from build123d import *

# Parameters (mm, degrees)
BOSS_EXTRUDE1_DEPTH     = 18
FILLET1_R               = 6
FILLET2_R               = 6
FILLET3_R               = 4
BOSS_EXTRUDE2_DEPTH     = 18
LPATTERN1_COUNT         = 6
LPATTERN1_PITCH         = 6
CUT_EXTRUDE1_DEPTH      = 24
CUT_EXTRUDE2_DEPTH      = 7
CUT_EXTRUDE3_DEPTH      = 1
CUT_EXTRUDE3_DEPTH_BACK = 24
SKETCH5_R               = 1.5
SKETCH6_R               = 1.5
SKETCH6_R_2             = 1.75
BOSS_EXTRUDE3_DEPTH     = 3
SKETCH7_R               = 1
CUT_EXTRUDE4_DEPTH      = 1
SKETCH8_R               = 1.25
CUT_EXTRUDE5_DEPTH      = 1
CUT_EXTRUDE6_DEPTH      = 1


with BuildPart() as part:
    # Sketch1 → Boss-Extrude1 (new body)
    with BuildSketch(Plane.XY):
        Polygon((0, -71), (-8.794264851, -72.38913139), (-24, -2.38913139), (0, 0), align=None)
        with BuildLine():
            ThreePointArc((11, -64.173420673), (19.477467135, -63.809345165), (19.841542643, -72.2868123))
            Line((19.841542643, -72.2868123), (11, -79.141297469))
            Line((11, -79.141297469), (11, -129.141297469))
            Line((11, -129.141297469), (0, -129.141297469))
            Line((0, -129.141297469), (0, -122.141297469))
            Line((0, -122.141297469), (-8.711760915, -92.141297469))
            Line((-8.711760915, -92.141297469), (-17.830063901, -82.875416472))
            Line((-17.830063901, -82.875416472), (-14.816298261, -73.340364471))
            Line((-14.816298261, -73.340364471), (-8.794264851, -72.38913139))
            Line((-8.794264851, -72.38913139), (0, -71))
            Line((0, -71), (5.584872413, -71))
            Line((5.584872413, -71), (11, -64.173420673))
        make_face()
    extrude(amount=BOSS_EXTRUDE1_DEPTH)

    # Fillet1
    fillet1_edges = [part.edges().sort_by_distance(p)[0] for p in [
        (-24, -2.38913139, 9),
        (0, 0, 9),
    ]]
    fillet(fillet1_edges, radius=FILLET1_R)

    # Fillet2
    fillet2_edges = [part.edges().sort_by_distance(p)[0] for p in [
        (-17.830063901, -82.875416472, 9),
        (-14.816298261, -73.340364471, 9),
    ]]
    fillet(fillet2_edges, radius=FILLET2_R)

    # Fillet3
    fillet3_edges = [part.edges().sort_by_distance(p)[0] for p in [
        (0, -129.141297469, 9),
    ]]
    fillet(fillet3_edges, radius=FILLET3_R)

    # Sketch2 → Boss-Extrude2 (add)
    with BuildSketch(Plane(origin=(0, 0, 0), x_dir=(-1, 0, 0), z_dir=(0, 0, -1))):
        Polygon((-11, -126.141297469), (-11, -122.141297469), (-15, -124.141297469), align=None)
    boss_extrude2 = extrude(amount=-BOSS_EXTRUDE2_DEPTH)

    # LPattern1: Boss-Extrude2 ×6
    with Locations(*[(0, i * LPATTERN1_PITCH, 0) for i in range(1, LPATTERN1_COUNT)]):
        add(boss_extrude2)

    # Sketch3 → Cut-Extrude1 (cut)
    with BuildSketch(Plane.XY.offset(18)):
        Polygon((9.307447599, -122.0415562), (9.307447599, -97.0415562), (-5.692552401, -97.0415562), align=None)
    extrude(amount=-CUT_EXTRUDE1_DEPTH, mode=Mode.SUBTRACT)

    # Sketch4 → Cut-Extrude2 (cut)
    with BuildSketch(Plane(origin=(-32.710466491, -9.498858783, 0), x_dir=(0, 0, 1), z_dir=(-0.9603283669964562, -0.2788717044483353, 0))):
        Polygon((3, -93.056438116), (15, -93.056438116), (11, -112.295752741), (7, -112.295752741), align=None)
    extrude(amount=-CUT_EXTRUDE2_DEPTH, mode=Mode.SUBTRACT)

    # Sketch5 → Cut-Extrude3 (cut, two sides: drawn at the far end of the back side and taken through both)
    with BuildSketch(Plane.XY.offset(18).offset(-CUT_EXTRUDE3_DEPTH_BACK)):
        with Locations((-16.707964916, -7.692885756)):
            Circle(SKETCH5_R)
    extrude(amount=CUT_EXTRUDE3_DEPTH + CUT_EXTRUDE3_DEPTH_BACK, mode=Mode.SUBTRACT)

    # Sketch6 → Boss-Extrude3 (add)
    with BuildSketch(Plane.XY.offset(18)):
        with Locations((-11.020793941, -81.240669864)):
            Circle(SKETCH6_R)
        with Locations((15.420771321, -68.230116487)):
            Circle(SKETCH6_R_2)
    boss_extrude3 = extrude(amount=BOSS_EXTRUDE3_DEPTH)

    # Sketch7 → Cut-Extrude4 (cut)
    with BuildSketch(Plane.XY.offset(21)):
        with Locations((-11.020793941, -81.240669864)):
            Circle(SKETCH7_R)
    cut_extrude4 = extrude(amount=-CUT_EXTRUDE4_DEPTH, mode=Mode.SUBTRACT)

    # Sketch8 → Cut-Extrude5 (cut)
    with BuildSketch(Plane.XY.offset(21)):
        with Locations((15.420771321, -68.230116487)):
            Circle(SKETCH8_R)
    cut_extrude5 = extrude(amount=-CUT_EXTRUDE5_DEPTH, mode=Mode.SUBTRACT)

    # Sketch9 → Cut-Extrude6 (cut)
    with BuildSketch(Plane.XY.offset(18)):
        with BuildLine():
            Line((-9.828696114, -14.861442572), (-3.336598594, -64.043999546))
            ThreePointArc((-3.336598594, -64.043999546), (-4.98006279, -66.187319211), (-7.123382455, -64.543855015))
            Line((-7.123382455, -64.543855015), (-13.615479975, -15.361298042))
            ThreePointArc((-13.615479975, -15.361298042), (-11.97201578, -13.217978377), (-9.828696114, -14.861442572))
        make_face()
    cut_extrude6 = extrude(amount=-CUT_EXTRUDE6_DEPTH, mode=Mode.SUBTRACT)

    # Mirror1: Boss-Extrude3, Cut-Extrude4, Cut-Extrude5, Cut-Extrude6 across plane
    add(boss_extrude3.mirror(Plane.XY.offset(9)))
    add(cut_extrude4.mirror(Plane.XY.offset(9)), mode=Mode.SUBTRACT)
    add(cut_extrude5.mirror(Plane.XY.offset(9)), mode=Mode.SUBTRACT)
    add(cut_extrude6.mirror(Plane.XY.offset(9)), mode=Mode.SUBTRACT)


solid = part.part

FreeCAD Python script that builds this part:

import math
import FreeCAD as App
import Part
import Sketcher

V = App.Vector
Q = App.Units.Quantity


def edges_at(feature, points):
    """Names of the edges that pass closest to the given points."""
    edges = feature.Shape.Edges
    near = lambda p: min(range(len(edges)), key=lambda i: edges[i].distToShape(Part.Vertex(*p))[0])
    return sorted({f"Edge{near(p) + 1}" for p in points})


def add_polygon(sketch, points):
    """Adds a closed chain of lines whose ends are joined by coincident constraints."""
    first, n = sketch.GeometryCount, len(points)
    for a, b in zip(points, points[1:] + points[:1]):
        sketch.addGeometry(Part.LineSegment(App.Vector(*a, 0), App.Vector(*b, 0)), False)
    for i in range(n):
        sketch.addConstraint(Sketcher.Constraint("Coincident", first + i, 2, first + (i + 1) % n, 1))

doc = App.newDocument("Part")
body = doc.addObject("PartDesign::Body", "Body")

sketch1 = body.newObject("Sketcher::SketchObject", "Sketch")
sketch1.AttachmentSupport = (doc.getObject("XY_Plane"), [""])
sketch1.MapMode = "FlatFace"
sketch1.addGeometry([
    Part.LineSegment(V(-24, -2, 0), V(-9, -72, 0)),
    Part.LineSegment(V(-9, -72, 0), V(-15, -73, 0)),
    Part.LineSegment(V(-15, -73, 0), V(-18, -83, 0)),
    Part.LineSegment(V(-18, -83, 0), V(-9, -92, 0)),
    Part.LineSegment(V(-9, -92, 0), V(0, -122, 0)),
    Part.LineSegment(V(0, -122, 0), V(0, -129, 0)),
    Part.LineSegment(V(0, -129, 0), V(11, -129, 0)),
    Part.LineSegment(V(11, -129, 0), V(11, -79, 0)),
    Part.LineSegment(V(11, -79, 0), V(20, -72, 0)),
    Part.ArcOfCircle(Part.Circle(V(15, -68, 0), V(0, 0, 1), 6), math.radians(-43), math.radians(137)),
    Part.LineSegment(V(11, -64, 0), V(6, -71, 0)),
    Part.LineSegment(V(6, -71, 0), V(0, -71, 0)),
    Part.LineSegment(V(0, -71, 0), V(0, 0, 0)),
    Part.LineSegment(V(0, 0, 0), V(-24, -2, 0)),
], False)
sketch1.addConstraint([
    Sketcher.Constraint("Coincident", 0, 2, 1, 1),
    Sketcher.Constraint("Coincident", 1, 2, 2, 1),
    Sketcher.Constraint("Coincident", 2, 2, 3, 1),
    Sketcher.Constraint("Coincident", 3, 2, 4, 1),
    Sketcher.Constraint("Coincident", 4, 2, 5, 1),
    Sketcher.Constraint("Coincident", 5, 2, 6, 1),
    Sketcher.Constraint("Coincident", 6, 2, 7, 1),
    Sketcher.Constraint("Coincident", 7, 2, 8, 1),
    Sketcher.Constraint("Coincident", 8, 2, 9, 1),
    Sketcher.Constraint("Coincident", 9, 2, 10, 1),
    Sketcher.Constraint("Coincident", 10, 2, 11, 1),
    Sketcher.Constraint("Coincident", 11, 2, 12, 1),
    Sketcher.Constraint("Coincident", 12, 2, 13, 1),
    Sketcher.Constraint("Coincident", 13, 2, 0, 1),
    Sketcher.Constraint("Vertical", 5),
    Sketcher.Constraint("Horizontal", 6),
    Sketcher.Constraint("Vertical", 7),
    Sketcher.Constraint("Horizontal", 11),
    Sketcher.Constraint("Vertical", 12),
    Sketcher.Constraint("Coincident", 12, 2, -1, 1),
    Sketcher.Constraint("PointOnObject", 4, 2, -2),
    Sketcher.Constraint("Vertical", 7, 2, 9, 2),
    Sketcher.Constraint("Radius", 9, Q("6 mm")),
    Sketcher.Constraint("DistanceX", 6, 1, 6, 2, Q("11 mm")),
    Sketcher.Constraint("DistanceY", 5, 2, 5, 1, Q("7 mm")),
    Sketcher.Constraint("DistanceY", 7, 1, 7, 2, Q("50 mm")),
    Sketcher.Constraint("DistanceY", 12, 1, 12, 2, Q("71 mm")),
    Sketcher.Constraint("Distance", 2, Q("10 mm")),
    Sketcher.Constraint("Distance", 3, Q("13 mm")),
    Sketcher.Constraint("DistanceX", 13, 2, -1, 1, Q("24 mm")),
    Sketcher.Constraint("DistanceY", 4, 2, 3, 2, Q("30 mm")),
    Sketcher.Constraint("DistanceY", 0, 2, 13, 2, Q("70 mm")),
    Sketcher.Constraint("Distance", 1, Q("6.096698 mm")),
    Sketcher.Constraint("DistanceX", 1, 2, -1, 1, Q("14.816298 mm")),
    Sketcher.Constraint("DistanceX", 2, 2, 0, 2, Q("9.035799 mm")),
    Sketcher.Constraint("DistanceY", 2, 2, 9, 3, Q("14.6453 mm")),
    Sketcher.Constraint("DistanceX", 10, 2, 9, 3, Q("9.835899 mm")),
    Sketcher.Constraint("Distance", 8, Q("11.187352 mm")),
    Sketcher.Constraint("Distance", 10, Q("8.713541 mm")),
    Sketcher.Constraint("DistanceX", 11, 2, 11, 1, Q("5.584872 mm")),
    Sketcher.Constraint("DistanceY", 0, 2, -1, 1, Q("72.389131 mm")),
    Sketcher.Constraint("DistanceX", 3, 2, -1, 1, Q("8.711761 mm")),
])
pad1 = body.newObject("PartDesign::Pad", "Pad")
pad1.Profile = sketch1
pad1.Length = 18
doc.recompute()

fillet = body.newObject("PartDesign::Fillet", "Fillet")
fillet.Base = (pad1, edges_at(pad1, [(-24, -2.389, 9), (0, 0, 9)]))
fillet.Radius = 6
doc.recompute()

fillet2 = body.newObject("PartDesign::Fillet", "Fillet001")
fillet2.Base = (fillet, edges_at(fillet, [(-17.83, -82.875, 9), (-14.816, -73.34, 9)]))
fillet2.Radius = 6
doc.recompute()

fillet3 = body.newObject("PartDesign::Fillet", "Fillet002")
fillet3.Base = (fillet2, edges_at(fillet2, [(0, -129.141, 9)]))
fillet3.Radius = 4

sketch2 = body.newObject("Sketcher::SketchObject", "Sketch001")
sketch2.AttachmentSupport = (doc.getObject("XY_Plane"), [""])
sketch2.MapMode = "FlatFace"
add_polygon(sketch2, [(11, -126.1), (11, -122.1), (15, -124.1)])
sketch2.addConstraint([
    Sketcher.Constraint("Vertical", 0),
    Sketcher.Constraint("Equal", 1, 2),
    Sketcher.Constraint("DistanceY", 0, 1, 0, 2, Q("4 mm")),
    Sketcher.Constraint("DistanceX", -1, 1, 0, 2, Q("11 mm")),
    Sketcher.Constraint("DistanceX", -1, 1, 1, 2, Q("15 mm")),
    Sketcher.Constraint("DistanceY", 0, 2, -1, 1, Q("122.141297 mm")),
])
pad2 = body.newObject("PartDesign::Pad", "Pad001")
pad2.Profile = sketch2
pad2.Length = 18
doc.recompute()

linearpattern = body.newObject("PartDesign::LinearPattern", "LinearPattern")
linearpattern.Originals = [pad2]
linearpattern.Direction = (doc.getObject("Y_Axis"), [""])
linearpattern.Mode = "offset"
linearpattern.Offset = 6
linearpattern.Occurrences = 6
body.Tip = linearpattern

sketch3 = body.newObject("Sketcher::SketchObject", "Sketch002")
sketch3.AttachmentSupport = (doc.getObject("XY_Plane"), [""])
sketch3.MapMode = "FlatFace"
sketch3.AttachmentOffset = App.Placement(V(0, 0, 18), App.Rotation())
add_polygon(sketch3, [(9, -122), (9, -97), (-6, -97)])
sketch3.addConstraint([
    Sketcher.Constraint("Vertical", 0),
    Sketcher.Constraint("Horizontal", 1),
    Sketcher.Constraint("DistanceX", 1, 2, 1, 1, Q("15 mm")),
    Sketcher.Constraint("DistanceY", 0, 1, 0, 2, Q("25 mm")),
    Sketcher.Constraint("DistanceX", -1, 1, 0, 2, Q("9.307448 mm")),
    Sketcher.Constraint("DistanceY", 0, 2, -1, 1, Q("97.041556 mm")),
])
pocket1 = body.newObject("PartDesign::Pocket", "Pocket")
pocket1.Profile = sketch3
pocket1.Length = 24

sketch4 = body.newObject("Sketcher::SketchObject", "Sketch003")
sketch4.Placement = App.Placement(V(-32.710466, -9.498859, 0), App.Rotation(V(0, 0, 1), V(-0.278871704, 0.960328367, 0), V(-0.960328367, -0.278871704, 0), "ZXY"))
add_polygon(sketch4, [(15, -93.1), (3, -93.1), (7, -112.3), (11, -112.3)])
sketch4.addConstraint([
    Sketcher.Constraint("Horizontal", 0),
    Sketcher.Constraint("Horizontal", 2),
    Sketcher.Constraint("Equal", 1, 3),
    Sketcher.Constraint("DistanceX", 0, 2, 0, 1, Q("12 mm")),
    Sketcher.Constraint("DistanceX", 2, 1, 2, 2, Q("4 mm")),
    Sketcher.Constraint("DistanceX", -1, 1, 0, 2, Q("3 mm")),
    Sketcher.Constraint("Distance", 1, Q("19.650731 mm")),
    Sketcher.Constraint("DistanceY", 0, 2, -1, 1, Q("93.056438 mm")),
])
pocket2 = body.newObject("PartDesign::Pocket", "Pocket001")
pocket2.Profile = sketch4
pocket2.Length = 7

sketch5 = body.newObject("Sketcher::SketchObject", "Sketch004")
sketch5.AttachmentSupport = (doc.getObject("XY_Plane"), [""])
sketch5.MapMode = "FlatFace"
sketch5.AttachmentOffset = App.Placement(V(0, 0, 18), App.Rotation())
sketch5.addGeometry(Part.Circle(V(-16.7, -7.7, 0), V(0, 0, 1), 1.5), False)
sketch5.addConstraint([
    Sketcher.Constraint("Diameter", 0, Q("3 mm")),
    Sketcher.Constraint("DistanceX", 0, 3, -1, 1, Q("16.707965 mm")),
    Sketcher.Constraint("DistanceY", 0, 3, -1, 1, Q("7.692886 mm")),
])
pocket3 = body.newObject("PartDesign::Pocket", "Pocket002")
pocket3.Profile = sketch5
pocket3.Type = "ThroughAll"
pocket3.Midplane = True

sketch6 = body.newObject("Sketcher::SketchObject", "Sketch005")
sketch6.AttachmentSupport = (doc.getObject("XY_Plane"), [""])
sketch6.MapMode = "FlatFace"
sketch6.AttachmentOffset = App.Placement(V(0, 0, 18), App.Rotation())
sketch6.addGeometry([
    Part.Circle(V(-11, -81.2, 0), V(0, 0, 1), 1.5),
    Part.Circle(V(15.4, -68.2, 0), V(0, 0, 1), 1.8),
], False)
sketch6.addConstraint([
    Sketcher.Constraint("Diameter", 0, Q("3 mm")),
    Sketcher.Constraint("Diameter", 1, Q("3.5 mm")),
    Sketcher.Constraint("DistanceY", 0, 3, -1, 1, Q("81.24067 mm")),
    Sketcher.Constraint("DistanceX", -1, 1, 1, 3, Q("15.420771 mm")),
    Sketcher.Constraint("DistanceX", 0, 3, -1, 1, Q("11.020794 mm")),
    Sketcher.Constraint("DistanceY", 1, 3, -1, 1, Q("68.230116 mm")),
])
pad3 = body.newObject("PartDesign::Pad", "Pad002")
pad3.Profile = sketch6
pad3.Length = 3

sketch7 = body.newObject("Sketcher::SketchObject", "Sketch006")
sketch7.AttachmentSupport = (doc.getObject("XY_Plane"), [""])
sketch7.MapMode = "FlatFace"
sketch7.AttachmentOffset = App.Placement(V(0, 0, 21), App.Rotation())
sketch7.addGeometry(Part.Circle(V(-11, -81.2, 0), V(0, 0, 1), 1), False)
sketch7.addConstraint([
    Sketcher.Constraint("Diameter", 0, Q("2 mm")),
    Sketcher.Constraint("DistanceY", 0, 3, -1, 1, Q("81.24067 mm")),
    Sketcher.Constraint("DistanceX", 0, 3, -1, 1, Q("11.020794 mm")),
])
pocket4 = body.newObject("PartDesign::Pocket", "Pocket003")
pocket4.Profile = sketch7
pocket4.Length = 1

sketch8 = body.newObject("Sketcher::SketchObject", "Sketch007")
sketch8.AttachmentSupport = (doc.getObject("XY_Plane"), [""])
sketch8.MapMode = "FlatFace"
sketch8.AttachmentOffset = App.Placement(V(0, 0, 21), App.Rotation())
sketch8.addGeometry(Part.Circle(V(15.4, -68.2, 0), V(0, 0, 1), 1.2), False)
sketch8.addConstraint([
    Sketcher.Constraint("Diameter", 0, Q("2.5 mm")),
    Sketcher.Constraint("DistanceX", -1, 1, 0, 3, Q("15.420771 mm")),
    Sketcher.Constraint("DistanceY", 0, 3, -1, 1, Q("68.230116 mm")),
])
pocket5 = body.newObject("PartDesign::Pocket", "Pocket004")
pocket5.Profile = sketch8
pocket5.Length = 1

sketch9 = body.newObject("Sketcher::SketchObject", "Sketch008")
sketch9.AttachmentSupport = (doc.getObject("XY_Plane"), [""])
sketch9.MapMode = "FlatFace"
sketch9.AttachmentOffset = App.Placement(V(0, 0, 18), App.Rotation())
sketch9.addGeometry([
    Part.LineSegment(V(-3.3, -64, 0), V(-9.8, -14.9, 0)),
    Part.ArcOfCircle(Part.Circle(V(-11.7, -15.1, 0), V(0, 0, 1), 1.9), math.radians(8), math.radians(188)),
    Part.LineSegment(V(-13.6, -15.4, 0), V(-7.1, -64.5, 0)),
    Part.ArcOfCircle(Part.Circle(V(-5.2, -64.3, 0), V(0, 0, 1), 1.9), math.radians(-172), math.radians(8)),
], False)
sketch9.addConstraint([
    Sketcher.Constraint("Tangent", 0, 2, 1, 1),
    Sketcher.Constraint("Tangent", 1, 2, 2, 1),
    Sketcher.Constraint("Tangent", 2, 2, 3, 1),
    Sketcher.Constraint("Tangent", 3, 2, 0, 1),
    Sketcher.Constraint("Equal", 1, 3),
    Sketcher.Constraint("DistanceY", 3, 2, -1, 1, Q("64.044 mm")),
    Sketcher.Constraint("Radius", 1, Q("1.909816 mm")),
    Sketcher.Constraint("DistanceY", 1, 2, -1, 1, Q("15.361298 mm")),
    Sketcher.Constraint("DistanceX", 3, 2, -1, 1, Q("3.336599 mm")),
    Sketcher.Constraint("DistanceX", 1, 3, -1, 1, Q("11.722088 mm")),
])
pocket6 = body.newObject("PartDesign::Pocket", "Pocket005")
pocket6.Profile = sketch9
pocket6.Length = 1
doc.recompute()

datumplane = body.newObject("PartDesign::Plane", "DatumPlane")
datumplane.AttachmentSupport = (doc.getObject("XY_Plane"), [""])
datumplane.MapMode = "FlatFace"
datumplane.AttachmentOffset = App.Placement(V(0, 0, 9), App.Rotation())
mirrored = body.newObject("PartDesign::Mirrored", "Mirrored")
mirrored.Originals = [pad3, pocket4, pocket5, pocket6]
mirrored.MirrorPlane = (datumplane, [""])
body.Tip = mirrored

doc.recompute()
